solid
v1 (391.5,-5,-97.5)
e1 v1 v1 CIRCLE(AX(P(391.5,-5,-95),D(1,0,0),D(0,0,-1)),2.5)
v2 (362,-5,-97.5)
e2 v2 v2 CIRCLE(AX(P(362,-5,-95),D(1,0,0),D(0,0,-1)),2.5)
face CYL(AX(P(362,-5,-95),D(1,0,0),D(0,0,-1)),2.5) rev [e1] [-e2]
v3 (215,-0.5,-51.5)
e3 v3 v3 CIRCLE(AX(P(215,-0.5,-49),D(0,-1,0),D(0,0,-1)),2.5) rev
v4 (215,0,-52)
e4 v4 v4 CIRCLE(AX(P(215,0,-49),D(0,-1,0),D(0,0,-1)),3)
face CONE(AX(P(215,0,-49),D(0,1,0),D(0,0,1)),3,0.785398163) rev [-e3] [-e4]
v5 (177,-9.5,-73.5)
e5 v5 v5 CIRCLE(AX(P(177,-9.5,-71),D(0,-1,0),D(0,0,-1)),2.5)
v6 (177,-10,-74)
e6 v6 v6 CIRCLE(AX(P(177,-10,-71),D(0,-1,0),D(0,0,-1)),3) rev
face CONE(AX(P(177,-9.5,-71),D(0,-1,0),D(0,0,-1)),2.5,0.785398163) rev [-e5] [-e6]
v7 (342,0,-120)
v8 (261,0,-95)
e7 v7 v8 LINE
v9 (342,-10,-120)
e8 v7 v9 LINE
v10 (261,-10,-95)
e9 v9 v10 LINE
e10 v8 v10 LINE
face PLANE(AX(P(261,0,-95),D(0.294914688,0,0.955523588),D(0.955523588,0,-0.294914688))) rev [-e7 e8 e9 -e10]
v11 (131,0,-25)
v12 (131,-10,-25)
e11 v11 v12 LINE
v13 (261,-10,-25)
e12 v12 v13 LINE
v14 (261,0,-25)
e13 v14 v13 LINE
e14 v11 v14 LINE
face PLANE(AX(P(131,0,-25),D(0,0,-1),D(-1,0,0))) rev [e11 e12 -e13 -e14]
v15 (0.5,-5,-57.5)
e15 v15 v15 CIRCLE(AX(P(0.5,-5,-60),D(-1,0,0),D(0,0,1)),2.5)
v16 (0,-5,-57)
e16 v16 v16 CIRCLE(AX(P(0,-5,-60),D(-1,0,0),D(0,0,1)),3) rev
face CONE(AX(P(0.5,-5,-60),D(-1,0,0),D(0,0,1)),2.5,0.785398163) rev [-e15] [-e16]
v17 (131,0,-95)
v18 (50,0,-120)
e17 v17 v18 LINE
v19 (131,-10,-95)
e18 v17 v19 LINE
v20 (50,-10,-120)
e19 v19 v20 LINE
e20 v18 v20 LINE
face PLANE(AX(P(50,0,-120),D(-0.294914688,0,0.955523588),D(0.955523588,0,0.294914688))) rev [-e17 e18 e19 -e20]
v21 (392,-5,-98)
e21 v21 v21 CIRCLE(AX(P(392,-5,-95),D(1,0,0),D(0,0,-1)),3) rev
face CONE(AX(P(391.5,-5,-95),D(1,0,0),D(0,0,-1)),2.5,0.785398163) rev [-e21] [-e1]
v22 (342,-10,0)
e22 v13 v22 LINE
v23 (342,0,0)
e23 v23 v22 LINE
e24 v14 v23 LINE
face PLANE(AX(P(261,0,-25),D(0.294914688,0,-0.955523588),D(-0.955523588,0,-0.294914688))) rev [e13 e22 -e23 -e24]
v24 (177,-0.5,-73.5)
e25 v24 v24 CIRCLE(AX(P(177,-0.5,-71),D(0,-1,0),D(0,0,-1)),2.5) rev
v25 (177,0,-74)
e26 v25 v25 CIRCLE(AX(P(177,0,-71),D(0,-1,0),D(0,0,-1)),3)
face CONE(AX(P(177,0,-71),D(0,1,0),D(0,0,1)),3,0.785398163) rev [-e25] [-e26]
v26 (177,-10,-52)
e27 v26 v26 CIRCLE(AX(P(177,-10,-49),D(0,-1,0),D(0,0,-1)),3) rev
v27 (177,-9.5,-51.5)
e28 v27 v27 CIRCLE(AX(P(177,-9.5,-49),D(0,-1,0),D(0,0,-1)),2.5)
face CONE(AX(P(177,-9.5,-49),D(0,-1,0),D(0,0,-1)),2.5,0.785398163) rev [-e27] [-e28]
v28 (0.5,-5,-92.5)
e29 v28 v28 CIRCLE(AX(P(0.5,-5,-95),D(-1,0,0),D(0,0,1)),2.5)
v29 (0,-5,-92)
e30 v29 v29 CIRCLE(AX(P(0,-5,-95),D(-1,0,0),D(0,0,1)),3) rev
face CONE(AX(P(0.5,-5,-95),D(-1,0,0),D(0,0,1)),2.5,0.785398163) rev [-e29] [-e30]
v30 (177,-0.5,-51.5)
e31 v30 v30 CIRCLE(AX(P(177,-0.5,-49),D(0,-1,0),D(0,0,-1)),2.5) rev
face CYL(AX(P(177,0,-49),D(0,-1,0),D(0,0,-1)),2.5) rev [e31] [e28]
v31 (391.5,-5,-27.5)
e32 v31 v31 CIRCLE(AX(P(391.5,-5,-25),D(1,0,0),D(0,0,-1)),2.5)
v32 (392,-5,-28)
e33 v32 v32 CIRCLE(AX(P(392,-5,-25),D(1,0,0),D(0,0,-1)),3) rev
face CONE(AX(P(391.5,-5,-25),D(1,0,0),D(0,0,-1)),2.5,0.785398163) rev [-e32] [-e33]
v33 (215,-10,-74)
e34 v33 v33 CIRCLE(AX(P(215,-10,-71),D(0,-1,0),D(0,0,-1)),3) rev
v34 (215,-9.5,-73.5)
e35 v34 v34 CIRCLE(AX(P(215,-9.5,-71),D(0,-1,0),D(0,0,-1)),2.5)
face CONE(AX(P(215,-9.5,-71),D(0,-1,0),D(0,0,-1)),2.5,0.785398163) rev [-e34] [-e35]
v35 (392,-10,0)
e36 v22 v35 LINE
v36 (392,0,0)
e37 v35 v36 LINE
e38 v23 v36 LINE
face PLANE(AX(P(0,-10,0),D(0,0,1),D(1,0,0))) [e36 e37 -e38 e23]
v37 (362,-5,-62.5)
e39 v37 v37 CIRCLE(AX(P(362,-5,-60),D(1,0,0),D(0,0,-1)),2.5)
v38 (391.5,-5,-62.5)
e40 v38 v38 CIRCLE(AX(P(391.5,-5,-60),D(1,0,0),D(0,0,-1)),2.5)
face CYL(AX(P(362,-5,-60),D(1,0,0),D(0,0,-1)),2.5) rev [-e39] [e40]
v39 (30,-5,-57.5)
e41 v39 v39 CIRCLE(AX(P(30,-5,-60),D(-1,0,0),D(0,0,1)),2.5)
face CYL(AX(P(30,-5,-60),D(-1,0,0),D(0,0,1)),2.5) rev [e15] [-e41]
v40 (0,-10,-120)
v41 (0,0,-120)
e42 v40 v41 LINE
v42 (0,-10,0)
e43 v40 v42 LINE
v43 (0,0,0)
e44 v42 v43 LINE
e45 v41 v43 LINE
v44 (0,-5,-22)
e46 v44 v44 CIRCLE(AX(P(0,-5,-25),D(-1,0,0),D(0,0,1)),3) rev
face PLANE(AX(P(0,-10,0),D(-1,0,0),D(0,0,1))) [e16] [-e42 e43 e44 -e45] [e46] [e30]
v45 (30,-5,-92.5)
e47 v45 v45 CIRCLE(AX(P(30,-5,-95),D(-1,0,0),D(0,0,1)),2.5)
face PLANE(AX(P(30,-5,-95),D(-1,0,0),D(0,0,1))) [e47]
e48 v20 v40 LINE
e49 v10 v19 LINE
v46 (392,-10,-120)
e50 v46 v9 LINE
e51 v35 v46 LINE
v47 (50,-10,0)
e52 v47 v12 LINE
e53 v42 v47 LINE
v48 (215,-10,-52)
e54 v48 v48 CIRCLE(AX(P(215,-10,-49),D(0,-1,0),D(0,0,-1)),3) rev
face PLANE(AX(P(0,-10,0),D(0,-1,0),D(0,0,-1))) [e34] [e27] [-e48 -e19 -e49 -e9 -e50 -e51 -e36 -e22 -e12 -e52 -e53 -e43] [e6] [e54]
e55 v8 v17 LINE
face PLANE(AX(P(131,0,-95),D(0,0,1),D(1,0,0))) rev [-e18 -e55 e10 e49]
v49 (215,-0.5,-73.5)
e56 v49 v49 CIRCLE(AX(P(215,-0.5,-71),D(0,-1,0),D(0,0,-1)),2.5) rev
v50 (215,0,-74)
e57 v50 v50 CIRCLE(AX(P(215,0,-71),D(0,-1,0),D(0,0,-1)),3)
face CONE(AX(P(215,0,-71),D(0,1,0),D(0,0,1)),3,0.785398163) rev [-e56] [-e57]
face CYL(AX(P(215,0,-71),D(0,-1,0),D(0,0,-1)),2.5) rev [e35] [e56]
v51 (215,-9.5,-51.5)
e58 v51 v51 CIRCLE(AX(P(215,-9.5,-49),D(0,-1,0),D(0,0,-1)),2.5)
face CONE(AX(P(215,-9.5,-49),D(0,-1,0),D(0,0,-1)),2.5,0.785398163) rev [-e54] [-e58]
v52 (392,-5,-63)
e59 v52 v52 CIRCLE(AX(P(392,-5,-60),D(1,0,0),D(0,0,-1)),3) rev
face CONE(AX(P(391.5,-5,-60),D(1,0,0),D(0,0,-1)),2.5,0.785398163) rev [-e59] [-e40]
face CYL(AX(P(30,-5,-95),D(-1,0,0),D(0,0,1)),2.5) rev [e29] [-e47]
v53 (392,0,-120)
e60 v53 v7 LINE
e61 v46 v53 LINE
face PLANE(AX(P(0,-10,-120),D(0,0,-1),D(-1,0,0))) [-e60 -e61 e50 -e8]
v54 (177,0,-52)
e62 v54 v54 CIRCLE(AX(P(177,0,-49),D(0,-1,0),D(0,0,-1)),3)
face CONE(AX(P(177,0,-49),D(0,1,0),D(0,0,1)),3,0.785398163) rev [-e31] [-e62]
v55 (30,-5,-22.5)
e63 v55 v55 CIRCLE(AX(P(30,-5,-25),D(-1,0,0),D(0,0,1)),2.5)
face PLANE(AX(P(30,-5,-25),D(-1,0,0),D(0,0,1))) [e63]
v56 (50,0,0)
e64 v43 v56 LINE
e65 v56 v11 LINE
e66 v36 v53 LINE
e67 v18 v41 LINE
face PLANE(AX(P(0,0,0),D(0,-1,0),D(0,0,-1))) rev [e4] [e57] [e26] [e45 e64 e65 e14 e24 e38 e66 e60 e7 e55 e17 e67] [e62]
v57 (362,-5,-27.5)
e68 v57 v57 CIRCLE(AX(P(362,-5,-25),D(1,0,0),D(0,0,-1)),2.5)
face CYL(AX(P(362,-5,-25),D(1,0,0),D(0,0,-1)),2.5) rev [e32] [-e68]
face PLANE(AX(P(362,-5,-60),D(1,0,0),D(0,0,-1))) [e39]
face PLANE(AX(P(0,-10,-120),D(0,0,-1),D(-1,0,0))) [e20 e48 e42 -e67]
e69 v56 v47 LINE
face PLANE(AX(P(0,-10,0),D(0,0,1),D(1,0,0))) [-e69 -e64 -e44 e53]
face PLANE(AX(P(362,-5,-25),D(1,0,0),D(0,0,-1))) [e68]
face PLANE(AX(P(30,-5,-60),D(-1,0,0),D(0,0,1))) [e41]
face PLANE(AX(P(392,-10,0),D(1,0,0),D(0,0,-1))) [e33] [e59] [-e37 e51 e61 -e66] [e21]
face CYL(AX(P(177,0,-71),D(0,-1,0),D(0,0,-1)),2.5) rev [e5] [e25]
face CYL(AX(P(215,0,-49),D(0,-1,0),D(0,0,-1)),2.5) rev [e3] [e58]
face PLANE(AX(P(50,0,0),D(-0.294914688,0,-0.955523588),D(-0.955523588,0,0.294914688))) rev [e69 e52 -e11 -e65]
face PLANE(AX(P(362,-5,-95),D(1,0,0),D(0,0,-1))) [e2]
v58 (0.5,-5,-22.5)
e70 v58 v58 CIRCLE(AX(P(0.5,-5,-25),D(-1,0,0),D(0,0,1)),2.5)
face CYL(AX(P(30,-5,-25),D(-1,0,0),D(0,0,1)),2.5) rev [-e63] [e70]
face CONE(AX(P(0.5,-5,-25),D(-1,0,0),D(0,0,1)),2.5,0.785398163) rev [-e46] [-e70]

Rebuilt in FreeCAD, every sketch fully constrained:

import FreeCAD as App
import Part
import Sketcher
Q = App.Units.Quantity


def edges_at(feature, points):
    """Names of the edges that pass closest to the given points."""
    edges = feature.Shape.Edges
    near = lambda p: min(range(len(edges)), key=lambda i: edges[i].distToShape(Part.Vertex(*p))[0])
    return sorted({f"Edge{near(p) + 1}" for p in points})


def add_polygon(sketch, points):
    """Adds a closed chain of lines whose ends are joined by coincident constraints."""
    first, n = sketch.GeometryCount, len(points)
    for a, b in zip(points, points[1:] + points[:1]):
        sketch.addGeometry(Part.LineSegment(App.Vector(*a, 0), App.Vector(*b, 0)), False)
    for i in range(n):
        sketch.addConstraint(Sketcher.Constraint("Coincident", first + i, 2, first + (i + 1) % n, 1))

doc = App.newDocument("Part")
body = doc.addObject("PartDesign::Body", "Body")

# Sketch on XZ plane
sketch1 = body.newObject("Sketcher::SketchObject", "Sketch")
sketch1.AttachmentSupport = (doc.getObject("XZ_Plane"), [""])
sketch1.MapMode = "FlatFace"
add_polygon(sketch1, [(0, -120), (0, 0), (392, 0), (392, -120)])  # lines 0-3
sketch1.addConstraint(Sketcher.Constraint("Vertical", 0))
sketch1.addConstraint(Sketcher.Constraint("Horizontal", 1))
sketch1.addConstraint(Sketcher.Constraint("Vertical", 2))
sketch1.addConstraint(Sketcher.Constraint("Horizontal", 3))
sketch1.addConstraint(Sketcher.Constraint("Coincident", 0, 2, -1, 1))
sketch1.addConstraint(Sketcher.Constraint("DistanceX", 1, 1, 1, 2, Q("392 mm")))
sketch1.addConstraint(Sketcher.Constraint("DistanceY", 0, 1, 0, 2, Q("120 mm")))
pad1 = body.newObject("PartDesign::Pad", "Pad")
pad1.Profile = sketch1
pad1.Length = 10

# Sketch on XZ plane
sketch2 = body.newObject("Sketcher::SketchObject", "Sketch001")
sketch2.AttachmentSupport = (doc.getObject("XZ_Plane"), [""])
sketch2.MapMode = "FlatFace"
sketch2.AttachmentOffset = App.Placement(App.Vector(0, 0, 10), App.Rotation())
sketch2.addGeometry(Part.Circle(App.Vector(177, -49, 0), App.Vector(0, 0, 1), 2.5), False)
sketch2.addGeometry(Part.Circle(App.Vector(177, -71, 0), App.Vector(0, 0, 1), 2.5), False)
sketch2.addGeometry(Part.Circle(App.Vector(215, -49, 0), App.Vector(0, 0, 1), 2.5), False)
sketch2.addGeometry(Part.Circle(App.Vector(215, -71, 0), App.Vector(0, 0, 1), 2.5), False)
sketch2.addConstraint(Sketcher.Constraint("Equal", 0, 1))
sketch2.addConstraint(Sketcher.Constraint("Equal", 1, 2))
sketch2.addConstraint(Sketcher.Constraint("Equal", 2, 3))
sketch2.addConstraint(Sketcher.Constraint("Horizontal", 0, 3, 2, 3))
sketch2.addConstraint(Sketcher.Constraint("Horizontal", 1, 3, 3, 3))
sketch2.addConstraint(Sketcher.Constraint("Vertical", 0, 3, 1, 3))
sketch2.addConstraint(Sketcher.Constraint("Vertical", 2, 3, 3, 3))
sketch2.addConstraint(Sketcher.Constraint("Diameter", 0, Q("5 mm")))
sketch2.addConstraint(Sketcher.Constraint("DistanceX", -1, 1, 0, 3, Q("177 mm")))
sketch2.addConstraint(Sketcher.Constraint("DistanceY", 0, 3, -1, 1, Q("49 mm")))
sketch2.addConstraint(Sketcher.Constraint("DistanceY", 1, 3, -1, 1, Q("71 mm")))
sketch2.addConstraint(Sketcher.Constraint("DistanceX", -1, 1, 2, 3, Q("215 mm")))
pocket1 = body.newObject("PartDesign::Pocket", "Pocket")
pocket1.Profile = sketch2
pocket1.Type = "ThroughAll"
doc.recompute()

chamfer = body.newObject("PartDesign::Chamfer", "Chamfer")
chamfer.Base = (pocket1, edges_at(pocket1, [
    (177, 0, -46.5),
    (177, -10, -46.5),
    (177, 0, -68.5),
    (177, -10, -68.5),
    (215, 0, -46.5),
    (215, -10, -46.5),
    (215, 0, -68.5),
    (215, -10, -68.5),
]))
chamfer.Size = 0.5

# Sketch on YZ plane
sketch3 = body.newObject("Sketcher::SketchObject", "Sketch002")
sketch3.AttachmentSupport = (doc.getObject("YZ_Plane"), [""])
sketch3.MapMode = "FlatFace"
sketch3.AttachmentOffset = App.Placement(App.Vector(0, 0, 392), App.Rotation())
sketch3.addGeometry(Part.Circle(App.Vector(-5, -25, 0), App.Vector(0, 0, 1), 2.5), False)
sketch3.addGeometry(Part.Circle(App.Vector(-5, -60, 0), App.Vector(0, 0, 1), 2.5), False)
sketch3.addGeometry(Part.Circle(App.Vector(-5, -95, 0), App.Vector(0, 0, 1), 2.5), False)
sketch3.addConstraint(Sketcher.Constraint("Equal", 0, 1))
sketch3.addConstraint(Sketcher.Constraint("Equal", 1, 2))
sketch3.addConstraint(Sketcher.Constraint("Vertical", 0, 3, 1, 3))
sketch3.addConstraint(Sketcher.Constraint("Vertical", 1, 3, 2, 3))
sketch3.addConstraint(Sketcher.Constraint("Diameter", 0, Q("5 mm")))
sketch3.addConstraint(Sketcher.Constraint("DistanceX", 0, 3, -1, 1, Q("5 mm")))
sketch3.addConstraint(Sketcher.Constraint("DistanceY", 0, 3, -1, 1, Q("25 mm")))
sketch3.addConstraint(Sketcher.Constraint("DistanceY", 1, 3, -1, 1, Q("60 mm")))
sketch3.addConstraint(Sketcher.Constraint("DistanceY", 2, 3, -1, 1, Q("95 mm")))
pocket2 = body.newObject("PartDesign::Pocket", "Pocket001")
pocket2.Profile = sketch3
pocket2.Length = 30

# Sketch on YZ plane
sketch4 = body.newObject("Sketcher::SketchObject", "Sketch003")
sketch4.AttachmentSupport = (doc.getObject("YZ_Plane"), [""])
sketch4.MapMode = "FlatFace"
sketch4.AttachmentOffset = App.Placement(App.Vector(0, 0, 30), App.Rotation())
sketch4.addGeometry(Part.Circle(App.Vector(-5, -25, 0), App.Vector(0, 0, 1), 2.5), False)
sketch4.addGeometry(Part.Circle(App.Vector(-5, -60, 0), App.Vector(0, 0, 1), 2.5), False)
sketch4.addGeometry(Part.Circle(App.Vector(-5, -95, 0), App.Vector(0, 0, 1), 2.5), False)
sketch4.addConstraint(Sketcher.Constraint("Equal", 0, 1))
sketch4.addConstraint(Sketcher.Constraint("Equal", 1, 2))
sketch4.addConstraint(Sketcher.Constraint("Vertical", 0, 3, 1, 3))
sketch4.addConstraint(Sketcher.Constraint("Vertical", 1, 3, 2, 3))
sketch4.addConstraint(Sketcher.Constraint("Diameter", 0, Q("5 mm")))
sketch4.addConstraint(Sketcher.Constraint("DistanceX", 0, 3, -1, 1, Q("5 mm")))
sketch4.addConstraint(Sketcher.Constraint("DistanceY", 0, 3, -1, 1, Q("25 mm")))
sketch4.addConstraint(Sketcher.Constraint("DistanceY", 1, 3, -1, 1, Q("60 mm")))
sketch4.addConstraint(Sketcher.Constraint("DistanceY", 2, 3, -1, 1, Q("95 mm")))
pocket3 = body.newObject("PartDesign::Pocket", "Pocket002")
pocket3.Profile = sketch4
pocket3.Length = 30
doc.recompute()

chamfer2 = body.newObject("PartDesign::Chamfer", "Chamfer001")
chamfer2.Base = (pocket3, edges_at(pocket3, [
    (392, -5, -22.5),
    (392, -5, -57.5),
    (392, -5, -92.5),
    (0, -5, -22.5),
    (0, -5, -57.5),
    (0, -5, -92.5),
]))
chamfer2.Size = 0.5

# Sketch on XZ plane
sketch5 = body.newObject("Sketcher::SketchObject", "Sketch004")
sketch5.AttachmentSupport = (doc.getObject("XZ_Plane"), [""])
sketch5.MapMode = "FlatFace"
sketch5.AttachmentOffset = App.Placement(App.Vector(0, 0, 10), App.Rotation())
add_polygon(sketch5, [(50, 0), (131, -25), (261, -25), (342, 0)])  # lines 0-3
add_polygon(sketch5, [(342, -120), (261, -95), (131, -95), (50, -120)])  # lines 4-7
sketch5.addConstraint(Sketcher.Constraint("Horizontal", 1))
sketch5.addConstraint(Sketcher.Constraint("Horizontal", 3))
sketch5.addConstraint(Sketcher.Constraint("Horizontal", 5))
sketch5.addConstraint(Sketcher.Constraint("Horizontal", 7))
sketch5.addConstraint(Sketcher.Constraint("PointOnObject", 2, 2, -1))
sketch5.addConstraint(Sketcher.Constraint("Parallel", 0, 4))
sketch5.addConstraint(Sketcher.Constraint("Parallel", 2, 6))
sketch5.addConstraint(Sketcher.Constraint("Vertical", 1, 2, 4, 2))
sketch5.addConstraint(Sketcher.Constraint("Vertical", 0, 2, 5, 2))
sketch5.addConstraint(Sketcher.Constraint("Vertical", 3, 2, 6, 2))
sketch5.addConstraint(Sketcher.Constraint("Vertical", 2, 2, 7, 2))
sketch5.addConstraint(Sketcher.Constraint("DistanceX", 1, 1, 1, 2, Q("130 mm")))
sketch5.addConstraint(Sketcher.Constraint("DistanceX", 3, 2, 3, 1, Q("292 mm")))
sketch5.addConstraint(Sketcher.Constraint("DistanceX", -1, 1, 0, 2, Q("131 mm")))
sketch5.addConstraint(Sketcher.Constraint("DistanceY", 0, 2, -1, 1, Q("25 mm")))
sketch5.addConstraint(Sketcher.Constraint("DistanceY", 4, 2, -1, 1, Q("95 mm")))
pocket4 = body.newObject("PartDesign::Pocket", "Pocket003")
pocket4.Profile = sketch5
pocket4.Type = "ThroughAll"

doc.recompute()
